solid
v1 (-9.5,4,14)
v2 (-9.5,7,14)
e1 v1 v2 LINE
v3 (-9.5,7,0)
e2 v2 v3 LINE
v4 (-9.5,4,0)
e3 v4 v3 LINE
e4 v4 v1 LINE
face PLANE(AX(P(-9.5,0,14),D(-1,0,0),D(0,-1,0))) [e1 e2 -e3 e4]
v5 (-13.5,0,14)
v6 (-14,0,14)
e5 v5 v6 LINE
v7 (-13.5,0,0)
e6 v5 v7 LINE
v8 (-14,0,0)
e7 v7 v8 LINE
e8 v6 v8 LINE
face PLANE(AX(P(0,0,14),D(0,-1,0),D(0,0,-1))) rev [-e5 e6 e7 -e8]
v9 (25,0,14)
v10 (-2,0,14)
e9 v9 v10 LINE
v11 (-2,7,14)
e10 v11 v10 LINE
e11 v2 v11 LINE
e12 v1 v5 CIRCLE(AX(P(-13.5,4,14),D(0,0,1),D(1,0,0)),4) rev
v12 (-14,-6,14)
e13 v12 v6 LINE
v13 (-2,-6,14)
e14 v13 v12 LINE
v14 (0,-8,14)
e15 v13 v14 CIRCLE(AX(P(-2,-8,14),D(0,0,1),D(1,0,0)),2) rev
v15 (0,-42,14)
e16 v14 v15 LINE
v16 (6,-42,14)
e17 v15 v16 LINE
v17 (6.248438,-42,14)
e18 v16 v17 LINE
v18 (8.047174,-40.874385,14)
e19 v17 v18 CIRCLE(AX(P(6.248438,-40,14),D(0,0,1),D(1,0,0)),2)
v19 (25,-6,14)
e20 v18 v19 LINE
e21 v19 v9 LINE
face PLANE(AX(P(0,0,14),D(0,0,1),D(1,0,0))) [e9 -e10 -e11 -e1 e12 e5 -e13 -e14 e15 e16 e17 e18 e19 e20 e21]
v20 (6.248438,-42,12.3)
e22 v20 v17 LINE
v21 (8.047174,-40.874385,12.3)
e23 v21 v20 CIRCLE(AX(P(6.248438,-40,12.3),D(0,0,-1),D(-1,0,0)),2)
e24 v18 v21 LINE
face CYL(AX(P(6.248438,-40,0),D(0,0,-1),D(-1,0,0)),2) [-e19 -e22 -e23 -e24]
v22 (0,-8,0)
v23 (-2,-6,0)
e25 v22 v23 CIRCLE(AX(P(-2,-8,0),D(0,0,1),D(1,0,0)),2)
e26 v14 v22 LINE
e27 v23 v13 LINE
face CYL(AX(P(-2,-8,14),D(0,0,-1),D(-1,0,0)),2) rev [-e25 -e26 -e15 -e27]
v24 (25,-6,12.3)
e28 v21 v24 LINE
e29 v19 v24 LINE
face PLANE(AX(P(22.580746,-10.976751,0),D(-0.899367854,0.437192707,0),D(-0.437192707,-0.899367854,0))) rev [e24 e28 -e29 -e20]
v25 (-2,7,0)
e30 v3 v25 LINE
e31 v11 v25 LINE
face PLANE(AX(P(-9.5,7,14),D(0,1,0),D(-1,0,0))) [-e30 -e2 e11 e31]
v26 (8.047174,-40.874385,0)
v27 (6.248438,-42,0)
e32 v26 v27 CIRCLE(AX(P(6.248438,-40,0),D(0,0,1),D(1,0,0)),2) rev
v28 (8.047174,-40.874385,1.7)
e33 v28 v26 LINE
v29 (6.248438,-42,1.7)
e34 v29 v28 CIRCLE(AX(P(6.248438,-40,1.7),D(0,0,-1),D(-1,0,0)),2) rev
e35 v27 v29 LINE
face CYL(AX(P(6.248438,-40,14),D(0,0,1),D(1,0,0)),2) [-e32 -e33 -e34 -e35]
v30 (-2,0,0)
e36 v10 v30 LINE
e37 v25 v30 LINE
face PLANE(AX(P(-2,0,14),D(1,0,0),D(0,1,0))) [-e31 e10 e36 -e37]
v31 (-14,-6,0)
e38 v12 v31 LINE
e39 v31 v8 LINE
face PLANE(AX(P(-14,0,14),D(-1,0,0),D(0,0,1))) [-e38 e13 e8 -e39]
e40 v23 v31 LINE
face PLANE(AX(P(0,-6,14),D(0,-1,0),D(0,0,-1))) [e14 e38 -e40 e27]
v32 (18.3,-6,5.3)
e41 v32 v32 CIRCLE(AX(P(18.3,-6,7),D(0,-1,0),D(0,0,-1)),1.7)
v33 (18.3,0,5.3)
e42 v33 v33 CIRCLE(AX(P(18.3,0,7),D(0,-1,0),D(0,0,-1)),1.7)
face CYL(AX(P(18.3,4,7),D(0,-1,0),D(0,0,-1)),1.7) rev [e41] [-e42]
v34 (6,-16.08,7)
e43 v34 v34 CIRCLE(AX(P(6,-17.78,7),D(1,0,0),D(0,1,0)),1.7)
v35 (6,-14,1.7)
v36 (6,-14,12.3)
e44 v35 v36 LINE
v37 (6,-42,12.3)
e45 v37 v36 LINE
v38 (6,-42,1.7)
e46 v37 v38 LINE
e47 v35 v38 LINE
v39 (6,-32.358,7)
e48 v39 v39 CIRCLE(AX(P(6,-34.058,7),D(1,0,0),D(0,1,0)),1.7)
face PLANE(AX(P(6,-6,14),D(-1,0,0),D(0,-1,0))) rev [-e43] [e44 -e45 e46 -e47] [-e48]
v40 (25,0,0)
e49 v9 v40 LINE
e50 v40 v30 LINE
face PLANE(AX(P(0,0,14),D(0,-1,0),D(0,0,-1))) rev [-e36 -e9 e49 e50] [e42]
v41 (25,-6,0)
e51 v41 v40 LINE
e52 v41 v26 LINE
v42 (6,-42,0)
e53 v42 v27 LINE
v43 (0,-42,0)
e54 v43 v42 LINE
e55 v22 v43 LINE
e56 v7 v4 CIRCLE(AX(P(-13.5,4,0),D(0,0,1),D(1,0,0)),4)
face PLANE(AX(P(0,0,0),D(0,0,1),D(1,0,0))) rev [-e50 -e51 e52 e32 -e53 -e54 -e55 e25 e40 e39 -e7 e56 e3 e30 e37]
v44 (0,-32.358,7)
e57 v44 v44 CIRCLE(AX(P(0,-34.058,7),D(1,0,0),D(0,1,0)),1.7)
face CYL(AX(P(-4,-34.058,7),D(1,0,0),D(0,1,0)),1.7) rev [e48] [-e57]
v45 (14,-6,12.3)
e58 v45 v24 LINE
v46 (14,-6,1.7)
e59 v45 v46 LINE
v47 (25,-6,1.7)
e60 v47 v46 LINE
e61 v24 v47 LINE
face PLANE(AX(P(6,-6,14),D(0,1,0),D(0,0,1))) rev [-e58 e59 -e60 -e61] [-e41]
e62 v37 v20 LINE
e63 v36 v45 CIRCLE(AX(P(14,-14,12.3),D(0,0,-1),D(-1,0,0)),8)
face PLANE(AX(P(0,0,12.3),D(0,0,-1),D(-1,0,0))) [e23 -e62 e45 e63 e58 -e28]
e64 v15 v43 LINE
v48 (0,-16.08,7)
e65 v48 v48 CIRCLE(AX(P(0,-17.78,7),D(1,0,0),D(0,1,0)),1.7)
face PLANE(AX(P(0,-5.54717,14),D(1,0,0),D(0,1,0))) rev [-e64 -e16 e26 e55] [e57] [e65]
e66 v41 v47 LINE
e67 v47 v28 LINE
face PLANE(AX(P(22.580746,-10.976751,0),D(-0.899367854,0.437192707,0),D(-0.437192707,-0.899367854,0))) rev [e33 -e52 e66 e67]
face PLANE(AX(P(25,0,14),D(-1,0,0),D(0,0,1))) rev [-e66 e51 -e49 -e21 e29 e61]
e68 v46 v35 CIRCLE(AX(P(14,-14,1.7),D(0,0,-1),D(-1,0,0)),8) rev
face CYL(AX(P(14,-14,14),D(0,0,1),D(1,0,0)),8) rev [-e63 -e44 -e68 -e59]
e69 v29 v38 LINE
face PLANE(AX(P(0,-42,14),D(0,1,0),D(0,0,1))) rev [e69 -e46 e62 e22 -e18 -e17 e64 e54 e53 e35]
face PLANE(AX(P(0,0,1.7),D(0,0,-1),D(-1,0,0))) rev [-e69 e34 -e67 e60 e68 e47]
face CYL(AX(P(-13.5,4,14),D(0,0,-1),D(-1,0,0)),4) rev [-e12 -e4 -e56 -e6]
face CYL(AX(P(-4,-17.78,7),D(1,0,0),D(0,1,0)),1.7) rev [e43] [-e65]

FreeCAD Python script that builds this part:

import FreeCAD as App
import Part
import Sketcher

V = App.Vector
Q = App.Units.Quantity


def edges_at(feature, points):
    """Names of the edges that pass closest to the given points."""
    edges = feature.Shape.Edges
    near = lambda p: min(range(len(edges)), key=lambda i: edges[i].distToShape(Part.Vertex(*p))[0])
    return sorted({f"Edge{near(p) + 1}" for p in points})


def add_polygon(sketch, points):
    """Adds a closed chain of lines whose ends are joined by coincident constraints."""
    first, n = sketch.GeometryCount, len(points)
    for a, b in zip(points, points[1:] + points[:1]):
        sketch.addGeometry(Part.LineSegment(App.Vector(*a, 0), App.Vector(*b, 0)), False)
    for i in range(n):
        sketch.addConstraint(Sketcher.Constraint("Coincident", first + i, 2, first + (i + 1) % n, 1))

doc = App.newDocument("Part")
params = doc.addObject("Spreadsheet::Sheet", "Params")
for row, (alias, value) in enumerate([
    ("sketch1_width", "25 mm"),
    ("sketch1_width2", "6 mm"),
    ("sketch1_height", "42 mm"),
    ("pad1_length", "14 mm"),
    ("sketch2_diameter", "3.4 mm"),
    ("pocket1_length", "10 mm"),
    ("sketch3_diameter", "3.4 mm"),
    ("pocket2_length", "10 mm"),
    ("sketch4_width", "14 mm"),
    ("sketch4_height", "6 mm"),
    ("pad2_length", "14 mm"),
    ("fillet_radius", "2 mm"),
    ("sketch5_width", "1.5 mm"),
    ("sketch5_height", "1.7 mm"),
    ("sketch6_width", "19 mm"),
    ("sketch6_height", "1.7 mm"),
    ("sketch7_width", "19 mm"),
    ("sketch7_height", "1.7 mm"),
    ("sketch8_width", "1.5 mm"),
    ("sketch8_height", "1.7 mm"),
    ("fillet2_radius", "8 mm"),
    ("sketch9_height", "7 mm"),
    ("sketch9_width", "7.5 mm"),
    ("pad3_length", "14 mm"),
    ("fillet3_radius", "4 mm"),
    ("fillet4_radius", "2 mm"),
    ("fillet5_radius", "2 mm"),
], start=1):
    params.set(f"A{row}", alias)
    params.set(f"B{row}", "=" + value)
    params.setAlias(f"B{row}", alias)

body = doc.addObject("PartDesign::Body", "Body")

# Sketch on XY plane
sketch1 = doc.addObject("Sketcher::SketchObject", "Sketch")
body.addObject(sketch1)
sketch1.AttachmentSupport = (doc.XY_Plane, [""])
sketch1.MapMode = "FlatFace"
add_polygon(sketch1, [(25, 0), (0, 0), (0, -42), (6, -42), (6, -6), (25, -6)])  # lines 0-5
sketch1.addConstraint(Sketcher.Constraint("Horizontal", 0))
sketch1.addConstraint(Sketcher.Constraint("Vertical", 1))
sketch1.addConstraint(Sketcher.Constraint("Horizontal", 2))
sketch1.addConstraint(Sketcher.Constraint("Vertical", 3))
sketch1.addConstraint(Sketcher.Constraint("Horizontal", 4))
sketch1.addConstraint(Sketcher.Constraint("Vertical", 5))
sketch1.addConstraint(Sketcher.Constraint("Coincident", 0, 2, -1, 1))
sketch1.addConstraint(Sketcher.Constraint("Equal", 2, 5))
sketch1.addConstraint(Sketcher.Constraint("DistanceX", 0, 2, 0, 1, Q("25 mm")))
sketch1.addConstraint(Sketcher.Constraint("DistanceX", 2, 1, 2, 2, Q("6 mm")))
sketch1.addConstraint(Sketcher.Constraint("DistanceY", 1, 2, 1, 1, Q("42 mm")))
sketch1.setExpression("Constraints[14]", "Params.sketch1_width")
sketch1.setExpression("Constraints[15]", "Params.sketch1_width2")
sketch1.setExpression("Constraints[16]", "Params.sketch1_height")
pad1 = doc.addObject("PartDesign::Pad", "Pad")
body.addObject(pad1)
pad1.Profile = sketch1
pad1.setExpression("Length", "Params.pad1_length")

# Sketch on YZ plane
sketch2 = doc.addObject("Sketcher::SketchObject", "Sketch001")
body.addObject(sketch2)
sketch2.AttachmentSupport = (doc.YZ_Plane, [""])
sketch2.MapMode = "FlatFace"
sketch2.AttachmentOffset = App.Placement(V(0, 0, 6), App.Rotation())
sketch2.addGeometry(Part.Circle(V(-17.78, 7, 0), V(0, 0, 1), 1.7), False)
sketch2.addGeometry(Part.Circle(V(-34.058, 7, 0), V(0, 0, 1), 1.7), False)
sketch2.addConstraint(Sketcher.Constraint("Equal", 0, 1))
sketch2.addConstraint(Sketcher.Constraint("Horizontal", 0, 3, 1, 3))
sketch2.addConstraint(Sketcher.Constraint("Diameter", 0, Q("3.4 mm")))
sketch2.addConstraint(Sketcher.Constraint("DistanceY", -1, 1, 0, 3, Q("7 mm")))
sketch2.addConstraint(Sketcher.Constraint("DistanceX", 0, 3, -1, 1, Q("17.78 mm")))
sketch2.addConstraint(Sketcher.Constraint("DistanceX", 1, 3, -1, 1, Q("34.058 mm")))
sketch2.setExpression("Constraints[2]", "Params.sketch2_diameter")
pocket1 = doc.addObject("PartDesign::Pocket", "Pocket")
body.addObject(pocket1)
pocket1.Profile = sketch2
pocket1.setExpression("Length", "Params.pocket1_length")

# Sketch on XZ plane
sketch3 = doc.addObject("Sketcher::SketchObject", "Sketch002")
body.addObject(sketch3)
sketch3.AttachmentSupport = (doc.XZ_Plane, [""])
sketch3.MapMode = "FlatFace"
sketch3.AttachmentOffset = App.Placement(V(0, 0, 6), App.Rotation())
sketch3.addGeometry(Part.Circle(V(18.3, 7, 0), V(0, 0, 1), 1.7), False)
sketch3.addConstraint(Sketcher.Constraint("Diameter", 0, Q("3.4 mm")))
sketch3.addConstraint(Sketcher.Constraint("DistanceY", -1, 1, 0, 3, Q("7 mm")))
sketch3.addConstraint(Sketcher.Constraint("DistanceX", -1, 1, 0, 3, Q("18.3 mm")))
sketch3.setExpression("Constraints[0]", "Params.sketch3_diameter")
pocket2 = doc.addObject("PartDesign::Pocket", "Pocket001")
body.addObject(pocket2)
pocket2.Profile = sketch3
pocket2.setExpression("Length", "Params.pocket2_length")

# Sketch on XY plane
sketch4 = doc.addObject("Sketcher::SketchObject", "Sketch003")
body.addObject(sketch4)
sketch4.AttachmentSupport = (doc.XY_Plane, [""])
sketch4.MapMode = "FlatFace"
add_polygon(sketch4, [(0, 0), (0, -6), (-14, -6), (-14, 0)])  # lines 0-3
sketch4.addConstraint(Sketcher.Constraint("Vertical", 0))
sketch4.addConstraint(Sketcher.Constraint("Horizontal", 1))
sketch4.addConstraint(Sketcher.Constraint("Vertical", 2))
sketch4.addConstraint(Sketcher.Constraint("Horizontal", 3))
sketch4.addConstraint(Sketcher.Constraint("Coincident", 3, 2, -1, 1))
sketch4.addConstraint(Sketcher.Constraint("DistanceX", 1, 2, 1, 1, Q("14 mm")))
sketch4.addConstraint(Sketcher.Constraint("DistanceY", 0, 2, 0, 1, Q("6 mm")))
sketch4.setExpression("Constraints[9]", "Params.sketch4_width")
sketch4.setExpression("Constraints[10]", "Params.sketch4_height")
pad2 = doc.addObject("PartDesign::Pad", "Pad001")
body.addObject(pad2)
pad2.Profile = sketch4
pad2.setExpression("Length", "Params.pad2_length")
doc.recompute()

fillet = doc.addObject("PartDesign::Fillet", "Fillet")
body.addObject(fillet)
fillet.Base = (pad2, edges_at(pad2, [(0, -6, 7)]))
fillet.setExpression("Radius", "Params.fillet_radius")

# Sketch on XZ plane
sketch5 = doc.addObject("Sketcher::SketchObject", "Sketch004")
body.addObject(sketch5)
sketch5.AttachmentSupport = (doc.XZ_Plane, [""])
sketch5.MapMode = "FlatFace"
sketch5.AttachmentOffset = App.Placement(V(0, 0, 42), App.Rotation())
add_polygon(sketch5, [(6, 14), (6, 12.3), (7.5, 12.3), (7.5, 14)])  # lines 0-3
sketch5.addConstraint(Sketcher.Constraint("Vertical", 0))
sketch5.addConstraint(Sketcher.Constraint("Horizontal", 1))
sketch5.addConstraint(Sketcher.Constraint("Vertical", 2))
sketch5.addConstraint(Sketcher.Constraint("Horizontal", 3))
sketch5.addConstraint(Sketcher.Constraint("DistanceX", 1, 1, 1, 2, Q("1.5 mm")))
sketch5.addConstraint(Sketcher.Constraint("DistanceY", 0, 2, 0, 1, Q("1.7 mm")))
sketch5.addConstraint(Sketcher.Constraint("DistanceX", -1, 1, 0, 2, Q("6 mm")))
sketch5.addConstraint(Sketcher.Constraint("DistanceY", -1, 1, 2, 2, Q("14 mm")))
sketch5.setExpression("Constraints[8]", "Params.sketch5_width")
sketch5.setExpression("Constraints[9]", "Params.sketch5_height")

# Sketch on XZ plane
sketch6 = doc.addObject("Sketcher::SketchObject", "Sketch005")
body.addObject(sketch6)
sketch6.AttachmentSupport = (doc.XZ_Plane, [""])
sketch6.MapMode = "FlatFace"
sketch6.AttachmentOffset = App.Placement(V(0, 0, 6), App.Rotation())
add_polygon(sketch6, [(6, 14), (6, 12.3), (25, 12.3), (25, 14)])  # lines 0-3
sketch6.addConstraint(Sketcher.Constraint("Vertical", 0))
sketch6.addConstraint(Sketcher.Constraint("Horizontal", 1))
sketch6.addConstraint(Sketcher.Constraint("Vertical", 2))
sketch6.addConstraint(Sketcher.Constraint("Horizontal", 3))
sketch6.addConstraint(Sketcher.Constraint("DistanceX", 1, 1, 1, 2, Q("19 mm")))
sketch6.addConstraint(Sketcher.Constraint("DistanceY", 0, 2, 0, 1, Q("1.7 mm")))
sketch6.addConstraint(Sketcher.Constraint("DistanceX", -1, 1, 0, 2, Q("6 mm")))
sketch6.addConstraint(Sketcher.Constraint("DistanceY", -1, 1, 2, 2, Q("14 mm")))
sketch6.setExpression("Constraints[8]", "Params.sketch6_width")
sketch6.setExpression("Constraints[9]", "Params.sketch6_height")

additiveloft = doc.addObject("PartDesign::AdditiveLoft", "AdditiveLoft")
body.addObject(additiveloft)
additiveloft.Profile = sketch5
additiveloft.Sections = [sketch6]

# Sketch on XZ plane
sketch7 = doc.addObject("Sketcher::SketchObject", "Sketch006")
body.addObject(sketch7)
sketch7.AttachmentSupport = (doc.XZ_Plane, [""])
sketch7.MapMode = "FlatFace"
sketch7.AttachmentOffset = App.Placement(V(0, 0, 6), App.Rotation())
add_polygon(sketch7, [(6, 1.7), (6, 0), (25, 0), (25, 1.7)])  # lines 0-3
sketch7.addConstraint(Sketcher.Constraint("Vertical", 0))
sketch7.addConstraint(Sketcher.Constraint("Horizontal", 1))
sketch7.addConstraint(Sketcher.Constraint("Vertical", 2))
sketch7.addConstraint(Sketcher.Constraint("Horizontal", 3))
sketch7.addConstraint(Sketcher.Constraint("PointOnObject", 0, 2, -1))
sketch7.addConstraint(Sketcher.Constraint("DistanceX", 1, 1, 1, 2, Q("19 mm")))
sketch7.addConstraint(Sketcher.Constraint("DistanceY", 0, 2, 0, 1, Q("1.7 mm")))
sketch7.addConstraint(Sketcher.Constraint("DistanceX", -1, 1, 0, 2, Q("6 mm")))
sketch7.setExpression("Constraints[9]", "Params.sketch7_width")
sketch7.setExpression("Constraints[10]", "Params.sketch7_height")

# Sketch on XZ plane
sketch8 = doc.addObject("Sketcher::SketchObject", "Sketch007")
body.addObject(sketch8)
sketch8.AttachmentSupport = (doc.XZ_Plane, [""])
sketch8.MapMode = "FlatFace"
sketch8.AttachmentOffset = App.Placement(V(0, 0, 42), App.Rotation())
add_polygon(sketch8, [(6, 1.7), (6, 0), (7.5, 0), (7.5, 1.7)])  # lines 0-3
sketch8.addConstraint(Sketcher.Constraint("Vertical", 0))
sketch8.addConstraint(Sketcher.Constraint("Horizontal", 1))
sketch8.addConstraint(Sketcher.Constraint("Vertical", 2))
sketch8.addConstraint(Sketcher.Constraint("Horizontal", 3))
sketch8.addConstraint(Sketcher.Constraint("PointOnObject", 0, 2, -1))
sketch8.addConstraint(Sketcher.Constraint("DistanceX", 1, 1, 1, 2, Q("1.5 mm")))
sketch8.addConstraint(Sketcher.Constraint("DistanceY", 0, 2, 0, 1, Q("1.7 mm")))
sketch8.addConstraint(Sketcher.Constraint("DistanceX", -1, 1, 0, 2, Q("6 mm")))
sketch8.setExpression("Constraints[9]", "Params.sketch8_width")
sketch8.setExpression("Constraints[10]", "Params.sketch8_height")

additiveloft2 = doc.addObject("PartDesign::AdditiveLoft", "AdditiveLoft001")
body.addObject(additiveloft2)
additiveloft2.Profile = sketch7
additiveloft2.Sections = [sketch8]
doc.recompute()

fillet2 = doc.addObject("PartDesign::Fillet", "Fillet001")
body.addObject(fillet2)
fillet2.Base = (additiveloft2, edges_at(additiveloft2, [(6, -6, 7)]))
fillet2.setExpression("Radius", "Params.fillet2_radius")

# Sketch on XY plane
sketch9 = doc.addObject("Sketcher::SketchObject", "Sketch008")
body.addObject(sketch9)
sketch9.AttachmentSupport = (doc.XY_Plane, [""])
sketch9.MapMode = "FlatFace"
add_polygon(sketch9, [(-2, 7), (-2, 0), (-9.5, 0), (-9.5, 7)])  # lines 0-3
sketch9.addConstraint(Sketcher.Constraint("Vertical", 0))
sketch9.addConstraint(Sketcher.Constraint("Horizontal", 1))
sketch9.addConstraint(Sketcher.Constraint("Vertical", 2))
sketch9.addConstraint(Sketcher.Constraint("Horizontal", 3))
sketch9.addConstraint(Sketcher.Constraint("PointOnObject", 0, 2, -1))
sketch9.addConstraint(Sketcher.Constraint("DistanceY", 0, 2, 0, 1, Q("7 mm")))
sketch9.addConstraint(Sketcher.Constraint("DistanceX", 1, 2, 1, 1, Q("7.5 mm")))
sketch9.addConstraint(Sketcher.Constraint("DistanceX", 0, 2, -1, 1, Q("2 mm")))
sketch9.setExpression("Constraints[9]", "Params.sketch9_height")
sketch9.setExpression("Constraints[10]", "Params.sketch9_width")
pad3 = doc.addObject("PartDesign::Pad", "Pad002")
body.addObject(pad3)
pad3.Profile = sketch9
pad3.setExpression("Length", "Params.pad3_length")
doc.recompute()

fillet3 = doc.addObject("PartDesign::Fillet", "Fillet002")
body.addObject(fillet3)
fillet3.Base = (pad3, edges_at(pad3, [(-9.5, 0, 7)]))
fillet3.setExpression("Radius", "Params.fillet3_radius")
doc.recompute()

fillet4 = doc.addObject("PartDesign::Fillet", "Fillet003")
body.addObject(fillet4)
fillet4.Base = (fillet3, edges_at(fillet3, [(7.5, -42, 0.85)]))
fillet4.setExpression("Radius", "Params.fillet4_radius")
doc.recompute()

fillet5 = doc.addObject("PartDesign::Fillet", "Fillet004")
body.addObject(fillet5)
fillet5.Base = (fillet4, edges_at(fillet4, [(7.5, -42, 13.15)]))
fillet5.setExpression("Radius", "Params.fillet5_radius")

doc.recompute()
